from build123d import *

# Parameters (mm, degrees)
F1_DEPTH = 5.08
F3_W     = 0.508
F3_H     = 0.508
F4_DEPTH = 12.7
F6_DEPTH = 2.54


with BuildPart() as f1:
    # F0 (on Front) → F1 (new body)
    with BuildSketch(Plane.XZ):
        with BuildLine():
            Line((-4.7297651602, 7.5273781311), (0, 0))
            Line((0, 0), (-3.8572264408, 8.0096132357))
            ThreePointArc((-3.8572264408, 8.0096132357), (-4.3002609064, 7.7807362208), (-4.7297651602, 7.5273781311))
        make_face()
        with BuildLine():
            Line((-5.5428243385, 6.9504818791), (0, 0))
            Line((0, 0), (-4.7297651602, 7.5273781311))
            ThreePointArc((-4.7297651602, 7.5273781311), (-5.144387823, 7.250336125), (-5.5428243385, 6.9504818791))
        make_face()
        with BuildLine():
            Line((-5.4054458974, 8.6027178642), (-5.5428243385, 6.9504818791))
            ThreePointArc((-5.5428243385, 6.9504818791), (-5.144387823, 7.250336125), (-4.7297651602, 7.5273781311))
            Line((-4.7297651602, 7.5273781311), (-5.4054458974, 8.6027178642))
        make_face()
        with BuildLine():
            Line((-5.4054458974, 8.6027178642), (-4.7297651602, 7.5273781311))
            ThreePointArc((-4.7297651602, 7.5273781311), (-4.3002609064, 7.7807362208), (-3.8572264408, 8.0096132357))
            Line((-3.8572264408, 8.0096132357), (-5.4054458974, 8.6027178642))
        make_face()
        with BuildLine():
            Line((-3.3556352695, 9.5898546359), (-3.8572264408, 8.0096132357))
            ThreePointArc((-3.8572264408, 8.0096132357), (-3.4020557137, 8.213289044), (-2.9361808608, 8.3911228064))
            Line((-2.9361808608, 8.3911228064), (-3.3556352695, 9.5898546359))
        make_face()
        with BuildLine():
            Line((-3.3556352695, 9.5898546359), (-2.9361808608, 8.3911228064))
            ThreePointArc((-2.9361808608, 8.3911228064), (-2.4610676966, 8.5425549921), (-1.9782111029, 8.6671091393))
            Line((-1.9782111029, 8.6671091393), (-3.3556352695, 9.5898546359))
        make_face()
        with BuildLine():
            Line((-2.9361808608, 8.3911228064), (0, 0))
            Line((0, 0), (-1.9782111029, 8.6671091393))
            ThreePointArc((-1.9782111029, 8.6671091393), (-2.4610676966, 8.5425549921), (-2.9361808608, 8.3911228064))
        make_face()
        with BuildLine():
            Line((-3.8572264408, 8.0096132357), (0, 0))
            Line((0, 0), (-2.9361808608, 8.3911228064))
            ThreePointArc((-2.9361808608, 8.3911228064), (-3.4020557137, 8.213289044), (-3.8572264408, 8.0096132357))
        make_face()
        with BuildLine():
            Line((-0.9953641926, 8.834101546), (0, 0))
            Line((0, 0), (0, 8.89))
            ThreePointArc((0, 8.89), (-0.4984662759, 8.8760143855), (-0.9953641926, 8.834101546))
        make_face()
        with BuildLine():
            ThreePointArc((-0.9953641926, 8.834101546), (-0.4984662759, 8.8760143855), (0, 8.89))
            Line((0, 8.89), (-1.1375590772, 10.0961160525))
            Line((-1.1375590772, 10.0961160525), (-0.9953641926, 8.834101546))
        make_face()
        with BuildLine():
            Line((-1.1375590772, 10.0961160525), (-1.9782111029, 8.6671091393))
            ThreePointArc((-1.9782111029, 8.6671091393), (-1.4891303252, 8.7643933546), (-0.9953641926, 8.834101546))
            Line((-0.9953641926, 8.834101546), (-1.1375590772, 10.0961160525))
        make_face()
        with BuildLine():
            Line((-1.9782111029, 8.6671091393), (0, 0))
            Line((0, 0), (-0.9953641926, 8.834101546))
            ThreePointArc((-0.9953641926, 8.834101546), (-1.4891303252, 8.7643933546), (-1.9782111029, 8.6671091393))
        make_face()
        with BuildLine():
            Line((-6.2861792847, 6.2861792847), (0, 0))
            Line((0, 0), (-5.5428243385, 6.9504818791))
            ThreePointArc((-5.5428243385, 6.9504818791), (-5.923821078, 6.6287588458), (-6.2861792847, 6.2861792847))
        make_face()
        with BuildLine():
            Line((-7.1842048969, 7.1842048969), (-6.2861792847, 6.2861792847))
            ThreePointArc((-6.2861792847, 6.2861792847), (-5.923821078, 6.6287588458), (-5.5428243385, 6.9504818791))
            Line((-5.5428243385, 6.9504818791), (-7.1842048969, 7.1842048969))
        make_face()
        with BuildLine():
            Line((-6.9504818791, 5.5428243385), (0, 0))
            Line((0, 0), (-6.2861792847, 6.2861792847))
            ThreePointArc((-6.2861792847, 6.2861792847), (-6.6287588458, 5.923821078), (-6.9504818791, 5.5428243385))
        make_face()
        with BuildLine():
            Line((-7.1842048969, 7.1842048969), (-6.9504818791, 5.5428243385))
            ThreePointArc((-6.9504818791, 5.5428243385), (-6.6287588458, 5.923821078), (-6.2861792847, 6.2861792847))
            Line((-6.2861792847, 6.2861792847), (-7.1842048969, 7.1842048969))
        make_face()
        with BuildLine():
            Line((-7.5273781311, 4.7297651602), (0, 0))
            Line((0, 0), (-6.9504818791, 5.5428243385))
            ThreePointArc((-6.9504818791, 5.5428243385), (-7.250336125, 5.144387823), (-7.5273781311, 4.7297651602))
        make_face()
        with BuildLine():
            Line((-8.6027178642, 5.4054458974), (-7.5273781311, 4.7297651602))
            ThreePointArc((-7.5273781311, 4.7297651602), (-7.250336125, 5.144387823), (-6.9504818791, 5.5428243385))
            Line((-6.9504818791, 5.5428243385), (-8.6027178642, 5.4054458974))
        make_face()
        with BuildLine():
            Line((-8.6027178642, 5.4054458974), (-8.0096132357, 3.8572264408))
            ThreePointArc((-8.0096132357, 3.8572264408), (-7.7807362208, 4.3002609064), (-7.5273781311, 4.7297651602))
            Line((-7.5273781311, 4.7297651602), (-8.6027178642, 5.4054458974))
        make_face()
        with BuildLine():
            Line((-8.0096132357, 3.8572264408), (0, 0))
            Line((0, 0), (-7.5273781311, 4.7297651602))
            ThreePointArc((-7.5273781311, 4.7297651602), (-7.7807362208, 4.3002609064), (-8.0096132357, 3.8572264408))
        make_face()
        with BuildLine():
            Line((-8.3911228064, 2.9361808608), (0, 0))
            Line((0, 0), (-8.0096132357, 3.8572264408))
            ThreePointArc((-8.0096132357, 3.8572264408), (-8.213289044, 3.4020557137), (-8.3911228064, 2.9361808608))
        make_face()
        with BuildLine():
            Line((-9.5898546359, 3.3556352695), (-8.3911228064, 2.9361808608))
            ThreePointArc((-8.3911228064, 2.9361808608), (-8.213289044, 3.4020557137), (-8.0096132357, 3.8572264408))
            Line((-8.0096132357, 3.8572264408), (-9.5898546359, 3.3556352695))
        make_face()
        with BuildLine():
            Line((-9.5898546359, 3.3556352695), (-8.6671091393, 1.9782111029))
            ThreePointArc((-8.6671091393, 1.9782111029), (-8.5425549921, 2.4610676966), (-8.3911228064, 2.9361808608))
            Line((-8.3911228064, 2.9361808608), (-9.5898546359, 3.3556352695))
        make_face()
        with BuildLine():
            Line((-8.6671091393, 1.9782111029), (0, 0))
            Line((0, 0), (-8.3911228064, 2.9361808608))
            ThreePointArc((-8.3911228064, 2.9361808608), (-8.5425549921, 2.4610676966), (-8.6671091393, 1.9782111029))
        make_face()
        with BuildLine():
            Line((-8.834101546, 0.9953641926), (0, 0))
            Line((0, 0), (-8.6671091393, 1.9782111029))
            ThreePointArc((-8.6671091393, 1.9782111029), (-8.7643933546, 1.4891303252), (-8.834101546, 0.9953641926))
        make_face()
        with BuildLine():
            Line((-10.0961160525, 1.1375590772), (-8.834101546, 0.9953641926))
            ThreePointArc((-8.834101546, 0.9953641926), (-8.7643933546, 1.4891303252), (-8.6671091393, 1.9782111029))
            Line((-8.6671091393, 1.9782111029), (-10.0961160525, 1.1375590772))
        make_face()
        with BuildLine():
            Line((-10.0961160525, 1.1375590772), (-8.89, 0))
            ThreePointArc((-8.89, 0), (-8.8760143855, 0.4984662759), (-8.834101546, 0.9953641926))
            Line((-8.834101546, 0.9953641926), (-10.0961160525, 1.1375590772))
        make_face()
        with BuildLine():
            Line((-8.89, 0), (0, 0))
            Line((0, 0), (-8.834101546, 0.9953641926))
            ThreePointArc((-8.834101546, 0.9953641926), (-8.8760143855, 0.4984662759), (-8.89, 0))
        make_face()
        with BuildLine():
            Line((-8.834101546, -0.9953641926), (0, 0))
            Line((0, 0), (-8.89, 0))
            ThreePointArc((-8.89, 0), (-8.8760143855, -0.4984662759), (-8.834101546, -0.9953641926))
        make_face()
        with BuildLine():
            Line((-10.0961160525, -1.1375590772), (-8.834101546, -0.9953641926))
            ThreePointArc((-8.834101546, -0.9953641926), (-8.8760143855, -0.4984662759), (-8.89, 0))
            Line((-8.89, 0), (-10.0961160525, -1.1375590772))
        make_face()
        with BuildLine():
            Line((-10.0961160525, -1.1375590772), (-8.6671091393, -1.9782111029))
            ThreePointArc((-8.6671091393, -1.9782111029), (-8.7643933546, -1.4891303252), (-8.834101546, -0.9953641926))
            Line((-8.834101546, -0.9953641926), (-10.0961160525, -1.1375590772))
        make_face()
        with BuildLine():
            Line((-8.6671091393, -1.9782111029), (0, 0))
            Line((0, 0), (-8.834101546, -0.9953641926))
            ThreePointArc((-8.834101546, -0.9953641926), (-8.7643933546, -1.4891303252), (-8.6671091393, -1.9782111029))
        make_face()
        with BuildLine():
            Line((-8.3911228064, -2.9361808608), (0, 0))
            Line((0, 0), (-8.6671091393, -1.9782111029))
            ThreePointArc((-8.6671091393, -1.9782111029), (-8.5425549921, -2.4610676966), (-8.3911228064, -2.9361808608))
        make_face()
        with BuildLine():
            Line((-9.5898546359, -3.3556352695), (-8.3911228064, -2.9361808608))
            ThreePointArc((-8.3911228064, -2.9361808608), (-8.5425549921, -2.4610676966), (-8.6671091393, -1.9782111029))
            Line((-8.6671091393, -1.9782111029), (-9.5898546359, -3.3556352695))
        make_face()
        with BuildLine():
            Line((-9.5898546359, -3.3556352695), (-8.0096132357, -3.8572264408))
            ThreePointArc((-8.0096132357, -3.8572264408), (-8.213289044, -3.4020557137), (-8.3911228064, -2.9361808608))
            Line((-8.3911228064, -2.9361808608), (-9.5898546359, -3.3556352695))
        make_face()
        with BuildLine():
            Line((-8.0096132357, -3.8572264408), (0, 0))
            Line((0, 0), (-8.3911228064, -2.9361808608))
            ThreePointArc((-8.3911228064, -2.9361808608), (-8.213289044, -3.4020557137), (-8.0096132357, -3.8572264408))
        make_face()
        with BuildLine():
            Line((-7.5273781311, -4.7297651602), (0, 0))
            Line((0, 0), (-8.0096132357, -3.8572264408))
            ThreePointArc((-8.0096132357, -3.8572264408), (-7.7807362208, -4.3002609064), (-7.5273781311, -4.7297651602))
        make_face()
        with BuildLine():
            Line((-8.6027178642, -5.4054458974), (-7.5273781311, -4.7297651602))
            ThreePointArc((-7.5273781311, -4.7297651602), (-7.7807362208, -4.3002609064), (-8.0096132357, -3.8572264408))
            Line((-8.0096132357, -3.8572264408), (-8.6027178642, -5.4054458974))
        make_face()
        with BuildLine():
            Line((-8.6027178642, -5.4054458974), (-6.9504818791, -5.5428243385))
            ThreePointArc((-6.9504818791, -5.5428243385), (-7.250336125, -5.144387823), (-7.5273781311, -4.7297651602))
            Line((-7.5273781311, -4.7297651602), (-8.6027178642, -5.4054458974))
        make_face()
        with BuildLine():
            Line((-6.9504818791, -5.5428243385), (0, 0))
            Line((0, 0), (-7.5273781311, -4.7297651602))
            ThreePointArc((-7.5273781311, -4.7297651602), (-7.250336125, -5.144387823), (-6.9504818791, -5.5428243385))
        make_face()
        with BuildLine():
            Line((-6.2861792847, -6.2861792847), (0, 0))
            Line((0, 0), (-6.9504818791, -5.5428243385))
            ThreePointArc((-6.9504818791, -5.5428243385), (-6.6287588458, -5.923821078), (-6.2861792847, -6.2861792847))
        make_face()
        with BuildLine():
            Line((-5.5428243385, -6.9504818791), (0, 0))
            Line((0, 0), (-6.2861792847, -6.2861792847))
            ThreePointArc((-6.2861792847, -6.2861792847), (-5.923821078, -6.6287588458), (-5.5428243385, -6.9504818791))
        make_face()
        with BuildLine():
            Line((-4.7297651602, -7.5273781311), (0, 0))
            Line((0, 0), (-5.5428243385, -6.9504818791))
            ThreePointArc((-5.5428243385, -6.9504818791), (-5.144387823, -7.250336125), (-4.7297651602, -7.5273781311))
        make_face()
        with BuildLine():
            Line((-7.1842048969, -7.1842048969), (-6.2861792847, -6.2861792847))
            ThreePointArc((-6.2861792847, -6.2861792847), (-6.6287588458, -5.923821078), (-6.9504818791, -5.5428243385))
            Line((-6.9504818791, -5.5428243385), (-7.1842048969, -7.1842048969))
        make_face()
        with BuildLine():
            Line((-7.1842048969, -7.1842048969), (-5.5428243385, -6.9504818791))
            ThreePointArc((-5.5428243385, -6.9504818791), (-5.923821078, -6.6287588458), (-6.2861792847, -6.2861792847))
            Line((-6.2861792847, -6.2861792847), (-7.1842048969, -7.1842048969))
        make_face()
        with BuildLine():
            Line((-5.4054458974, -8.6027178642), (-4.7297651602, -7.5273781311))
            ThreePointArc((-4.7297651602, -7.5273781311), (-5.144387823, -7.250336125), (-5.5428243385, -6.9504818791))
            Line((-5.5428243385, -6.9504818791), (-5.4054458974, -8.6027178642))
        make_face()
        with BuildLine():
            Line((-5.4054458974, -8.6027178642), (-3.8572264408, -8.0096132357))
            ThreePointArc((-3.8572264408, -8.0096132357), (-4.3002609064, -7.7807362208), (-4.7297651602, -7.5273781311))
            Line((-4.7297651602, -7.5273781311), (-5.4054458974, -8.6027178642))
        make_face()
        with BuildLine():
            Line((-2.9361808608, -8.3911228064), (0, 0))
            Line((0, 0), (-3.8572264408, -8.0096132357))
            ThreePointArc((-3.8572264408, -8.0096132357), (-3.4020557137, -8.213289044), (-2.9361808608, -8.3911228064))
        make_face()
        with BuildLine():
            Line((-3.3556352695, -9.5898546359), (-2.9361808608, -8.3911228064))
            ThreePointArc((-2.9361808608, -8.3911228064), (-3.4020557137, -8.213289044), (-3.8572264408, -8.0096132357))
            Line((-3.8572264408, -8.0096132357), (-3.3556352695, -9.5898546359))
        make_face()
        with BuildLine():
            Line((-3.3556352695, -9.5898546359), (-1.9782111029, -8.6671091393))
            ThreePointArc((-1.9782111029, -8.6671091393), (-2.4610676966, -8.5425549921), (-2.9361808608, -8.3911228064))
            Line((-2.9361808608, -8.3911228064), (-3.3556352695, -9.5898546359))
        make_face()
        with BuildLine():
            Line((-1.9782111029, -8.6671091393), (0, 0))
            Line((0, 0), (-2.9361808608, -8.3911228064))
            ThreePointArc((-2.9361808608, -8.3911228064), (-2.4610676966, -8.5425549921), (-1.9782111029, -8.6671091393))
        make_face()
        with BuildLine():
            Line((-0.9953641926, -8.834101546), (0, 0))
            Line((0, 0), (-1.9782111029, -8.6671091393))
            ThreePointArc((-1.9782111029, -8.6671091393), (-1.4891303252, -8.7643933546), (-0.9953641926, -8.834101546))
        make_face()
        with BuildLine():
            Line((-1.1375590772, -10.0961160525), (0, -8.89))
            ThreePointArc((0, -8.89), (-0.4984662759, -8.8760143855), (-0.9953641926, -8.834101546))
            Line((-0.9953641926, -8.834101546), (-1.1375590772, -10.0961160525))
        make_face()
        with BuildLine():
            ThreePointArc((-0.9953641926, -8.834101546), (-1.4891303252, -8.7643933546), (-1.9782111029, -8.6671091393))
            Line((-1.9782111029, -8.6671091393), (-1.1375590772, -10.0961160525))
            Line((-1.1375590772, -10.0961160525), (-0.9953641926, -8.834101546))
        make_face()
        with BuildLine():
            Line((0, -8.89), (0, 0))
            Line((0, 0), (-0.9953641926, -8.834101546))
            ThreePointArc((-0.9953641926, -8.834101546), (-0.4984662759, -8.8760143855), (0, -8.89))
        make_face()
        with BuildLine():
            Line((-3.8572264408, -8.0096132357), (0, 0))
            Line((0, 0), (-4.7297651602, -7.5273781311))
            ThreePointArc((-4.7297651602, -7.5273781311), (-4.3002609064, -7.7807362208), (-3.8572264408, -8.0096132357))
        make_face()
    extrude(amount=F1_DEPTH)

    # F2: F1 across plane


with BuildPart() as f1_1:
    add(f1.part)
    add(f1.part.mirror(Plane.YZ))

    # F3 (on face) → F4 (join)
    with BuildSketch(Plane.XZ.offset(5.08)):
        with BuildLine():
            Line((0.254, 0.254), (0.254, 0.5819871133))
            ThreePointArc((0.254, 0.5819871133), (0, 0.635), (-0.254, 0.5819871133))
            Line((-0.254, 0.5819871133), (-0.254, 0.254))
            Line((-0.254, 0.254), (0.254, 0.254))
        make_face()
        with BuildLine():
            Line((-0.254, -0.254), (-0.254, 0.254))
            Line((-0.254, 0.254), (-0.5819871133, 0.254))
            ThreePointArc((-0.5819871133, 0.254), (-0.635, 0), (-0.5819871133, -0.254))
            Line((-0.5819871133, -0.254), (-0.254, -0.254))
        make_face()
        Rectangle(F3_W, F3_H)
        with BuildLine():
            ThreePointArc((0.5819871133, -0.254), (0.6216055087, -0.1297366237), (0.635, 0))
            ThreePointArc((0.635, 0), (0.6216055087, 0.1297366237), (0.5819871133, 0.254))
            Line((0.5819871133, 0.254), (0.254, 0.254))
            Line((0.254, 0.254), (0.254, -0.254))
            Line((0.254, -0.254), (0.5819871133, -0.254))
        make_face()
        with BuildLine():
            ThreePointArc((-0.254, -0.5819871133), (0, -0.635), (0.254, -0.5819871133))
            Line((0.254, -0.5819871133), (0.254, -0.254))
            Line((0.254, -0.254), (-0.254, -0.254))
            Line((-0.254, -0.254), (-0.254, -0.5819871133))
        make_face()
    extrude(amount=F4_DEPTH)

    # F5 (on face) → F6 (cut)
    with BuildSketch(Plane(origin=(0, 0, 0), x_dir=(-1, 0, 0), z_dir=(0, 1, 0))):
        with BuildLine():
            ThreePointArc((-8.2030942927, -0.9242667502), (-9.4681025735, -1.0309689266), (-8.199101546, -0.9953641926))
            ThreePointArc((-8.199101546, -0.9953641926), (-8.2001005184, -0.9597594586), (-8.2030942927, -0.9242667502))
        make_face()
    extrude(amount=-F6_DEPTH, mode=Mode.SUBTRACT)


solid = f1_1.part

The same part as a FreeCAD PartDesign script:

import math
import FreeCAD as App
import Part
import Sketcher

V = App.Vector
Q = App.Units.Quantity


def add_polygon(sketch, points):
    """Adds a closed chain of lines whose ends are joined by coincident constraints."""
    first, n = sketch.GeometryCount, len(points)
    for a, b in zip(points, points[1:] + points[:1]):
        sketch.addGeometry(Part.LineSegment(App.Vector(*a, 0), App.Vector(*b, 0)), False)
    for i in range(n):
        sketch.addConstraint(Sketcher.Constraint("Coincident", first + i, 2, first + (i + 1) % n, 1))

doc = App.newDocument("Part")
body = doc.addObject("PartDesign::Body", "Body")

# Sketch on XZ plane
sketch1 = body.newObject("Sketcher::SketchObject", "Sketch")
sketch1.AttachmentSupport = (doc.getObject("XZ_Plane"), [""])
sketch1.MapMode = "FlatFace"
add_polygon(sketch1, [(-3.9, 8), (-5.4, 8.6), (-5.5, 7), (-7.2, 7.2), (-7, 5.5), (-8.6, 5.4), (-8, 3.9), (-9.6, 3.4), (-8.7, 2), (-10.1, 1.1), (-8.9, 0), (-10.1, -1.1), (-8.7, -2), (-9.6, -3.4), (-8, -3.9), (-8.6, -5.4), (-7, -5.5), (-7.2, -7.2), (-5.5, -7), (-5.4, -8.6), (-3.9, -8), (-3.4, -9.6), (-2, -8.7), (-1.1, -10.1), (0, -8.9), (0, 8.9), (-1.1, 10.1), (-2, 8.7), (-3.4, 9.6)])  # lines 0-28
sketch1.addConstraint(Sketcher.Constraint("Vertical", 24))
sketch1.addConstraint(Sketcher.Constraint("Symmetric", 23, 2, 24, 2, -1, 1))
sketch1.addConstraint(Sketcher.Constraint("Symmetric", 8, 2, 10, 2, -1))
sketch1.addConstraint(Sketcher.Constraint("Symmetric", 7, 2, 11, 2, -1))
sketch1.addConstraint(Sketcher.Constraint("Symmetric", 6, 2, 12, 2, -1))
sketch1.addConstraint(Sketcher.Constraint("Symmetric", 5, 2, 13, 2, -1))
sketch1.addConstraint(Sketcher.Constraint("Symmetric", 4, 2, 14, 2, -1))
sketch1.addConstraint(Sketcher.Constraint("Symmetric", 3, 2, 15, 2, -1))
sketch1.addConstraint(Sketcher.Constraint("Symmetric", 2, 2, 16, 2, -1))
sketch1.addConstraint(Sketcher.Constraint("Symmetric", 1, 2, 17, 2, -1))
sketch1.addConstraint(Sketcher.Constraint("Symmetric", 0, 2, 18, 2, -1))
sketch1.addConstraint(Sketcher.Constraint("Symmetric", 22, 2, 25, 2, -1))
sketch1.addConstraint(Sketcher.Constraint("Symmetric", 21, 2, 26, 2, -1))
sketch1.addConstraint(Sketcher.Constraint("Symmetric", 20, 2, 27, 2, -1))
sketch1.addConstraint(Sketcher.Constraint("Symmetric", 19, 2, 28, 2, -1))
sketch1.addConstraint(Sketcher.Constraint("PointOnObject", 9, 2, -1))
sketch1.addConstraint(Sketcher.Constraint("Perpendicular", 0, 14))
sketch1.addConstraint(Sketcher.Constraint("Perpendicular", 1, 15))
sketch1.addConstraint(Sketcher.Constraint("Perpendicular", 2, 16))
sketch1.addConstraint(Sketcher.Constraint("Perpendicular", 6, 20))
sketch1.addConstraint(Sketcher.Constraint("Perpendicular", 7, 21))
sketch1.addConstraint(Sketcher.Constraint("Perpendicular", 8, 22))
sketch1.addConstraint(Sketcher.Constraint("Perpendicular", 9, 23))
sketch1.addConstraint(Sketcher.Constraint("Equal", 0, 1))
sketch1.addConstraint(Sketcher.Constraint("Equal", 1, 2))
sketch1.addConstraint(Sketcher.Constraint("Equal", 2, 3))
sketch1.addConstraint(Sketcher.Constraint("Equal", 3, 4))
sketch1.addConstraint(Sketcher.Constraint("Equal", 4, 5))
sketch1.addConstraint(Sketcher.Constraint("Equal", 5, 6))
sketch1.addConstraint(Sketcher.Constraint("Equal", 6, 7))
sketch1.addConstraint(Sketcher.Constraint("Equal", 7, 8))
sketch1.addConstraint(Sketcher.Constraint("Equal", 8, 9))
sketch1.addConstraint(Sketcher.Constraint("Equal", 19, 20))
sketch1.addConstraint(Sketcher.Constraint("Equal", 20, 21))
sketch1.addConstraint(Sketcher.Constraint("Equal", 21, 22))
sketch1.addConstraint(Sketcher.Constraint("Equal", 22, 23))
sketch1.addConstraint(Sketcher.Constraint("DistanceY", 24, 1, 24, 2, Q("0.7 in")))
sketch1.addConstraint(Sketcher.Constraint("DistanceX", 8, 2, 4, 2, Q("1.493398 mm")))
sketch1.addConstraint(Sketcher.Constraint("DistanceY", -1, 1, 1, 2, Q("6.950482 mm")))
sketch1.addConstraint(Sketcher.Constraint("DistanceX", 7, 2, -1, 1, Q("8.667109 mm")))
sketch1.addConstraint(Sketcher.Constraint("DistanceY", -1, 1, 7, 2, Q("1.978211 mm")))
sketch1.addConstraint(Sketcher.Constraint("DistanceY", -1, 1, 8, 2, Q("1.137559 mm")))
sketch1.addConstraint(Sketcher.Constraint("DistanceX", 2, 2, 1, 2, Q("1.641381 mm")))
sketch1.addConstraint(Sketcher.Constraint("DistanceY", 5, 2, 4, 2, Q("1.548219 mm")))
pad1 = body.newObject("PartDesign::Pad", "Pad")
pad1.Profile = sketch1
pad1.Length = Q("0.2 in")
body2 = doc.addObject("PartDesign::Body", "Body001")
doc.recompute()

body2.BaseFeature = body
doc.recompute()

mirroring = doc.addObject("Part::Mirroring", "Mirroring")
mirroring.Source = body
mirroring.Base = V(0, 0, 0)
mirroring.Normal = V(1, 0, 0)
body3 = doc.addObject("PartDesign::Body", "Body002")
body3.BaseFeature = mirroring
boolean = body2.newObject("PartDesign::Boolean", "Boolean")
boolean.Type = "Fuse"
boolean.addObjects([body3])
doc.recompute()

# Sketch on XZ plane
sketch2 = body2.newObject("Sketcher::SketchObject", "Sketch001")
sketch2.AttachmentSupport = (doc.getObject("XZ_Plane001"), [""])
sketch2.MapMode = "FlatFace"
sketch2.AttachmentOffset = App.Placement(V(0, 0, 0.2 * 25.4), App.Rotation())
sketch2.addGeometry(Part.ArcOfCircle(Part.Circle(V(0, 0, 0), V(0, 0, 1), 0.64), math.radians(66), math.radians(114)), False)
sketch2.addGeometry(Part.LineSegment(V(-0.25, 0.58, 0), V(-0.25, 0.25, 0)), False)
sketch2.addGeometry(Part.LineSegment(V(-0.25, 0.25, 0), V(-0.58, 0.25, 0)), False)
sketch2.addGeometry(Part.ArcOfCircle(Part.Circle(V(0, 0, 0), V(0, 0, 1), 0.64), math.radians(156), math.radians(204)), False)
sketch2.addGeometry(Part.LineSegment(V(-0.58, -0.25, 0), V(-0.25, -0.25, 0)), False)
sketch2.addGeometry(Part.LineSegment(V(-0.25, -0.25, 0), V(-0.25, -0.58, 0)), False)
sketch2.addGeometry(Part.ArcOfCircle(Part.Circle(V(0, 0, 0), V(0, 0, 1), 0.64), math.radians(-114), math.radians(-66)), False)
sketch2.addGeometry(Part.LineSegment(V(0.25, -0.58, 0), V(0.25, -0.25, 0)), False)
sketch2.addGeometry(Part.LineSegment(V(0.25, -0.25, 0), V(0.58, -0.25, 0)), False)
sketch2.addGeometry(Part.ArcOfCircle(Part.Circle(V(0, 0, 0), V(0, 0, 1), 0.64), math.radians(-24), math.radians(0)), False)
sketch2.addGeometry(Part.ArcOfCircle(Part.Circle(V(0, 0, 0), V(0, 0, 1), 0.64), math.radians(0), math.radians(24)), False)
sketch2.addGeometry(Part.LineSegment(V(0.58, 0.25, 0), V(0.25, 0.25, 0)), False)
sketch2.addGeometry(Part.LineSegment(V(0.25, 0.25, 0), V(0.25, 0.58, 0)), False)
sketch2.addConstraint(Sketcher.Constraint("Coincident", 0, 2, 1, 1))
sketch2.addConstraint(Sketcher.Constraint("Coincident", 1, 2, 2, 1))
sketch2.addConstraint(Sketcher.Constraint("Coincident", 2, 2, 3, 1))
sketch2.addConstraint(Sketcher.Constraint("Coincident", 3, 2, 4, 1))
sketch2.addConstraint(Sketcher.Constraint("Coincident", 4, 2, 5, 1))
sketch2.addConstraint(Sketcher.Constraint("Coincident", 5, 2, 6, 1))
sketch2.addConstraint(Sketcher.Constraint("Coincident", 6, 2, 7, 1))
sketch2.addConstraint(Sketcher.Constraint("Coincident", 7, 2, 8, 1))
sketch2.addConstraint(Sketcher.Constraint("Coincident", 8, 2, 9, 1))
sketch2.addConstraint(Sketcher.Constraint("Tangent", 9, 2, 10, 1))
sketch2.addConstraint(Sketcher.Constraint("Coincident", 10, 2, 11, 1))
sketch2.addConstraint(Sketcher.Constraint("Coincident", 11, 2, 12, 1))
sketch2.addConstraint(Sketcher.Constraint("Coincident", 12, 2, 0, 1))
sketch2.addConstraint(Sketcher.Constraint("Vertical", 1))
sketch2.addConstraint(Sketcher.Constraint("Horizontal", 2))
sketch2.addConstraint(Sketcher.Constraint("Horizontal", 4))
sketch2.addConstraint(Sketcher.Constraint("Vertical", 5))
sketch2.addConstraint(Sketcher.Constraint("Vertical", 7))
sketch2.addConstraint(Sketcher.Constraint("Horizontal", 8))
sketch2.addConstraint(Sketcher.Constraint("Horizontal", 11))
sketch2.addConstraint(Sketcher.Constraint("Vertical", 12))
sketch2.addConstraint(Sketcher.Constraint("Coincident", 0, 3, -1, 1))
sketch2.addConstraint(Sketcher.Constraint("Coincident", 3, 3, -1, 1))
sketch2.addConstraint(Sketcher.Constraint("Coincident", 6, 3, -1, 1))
sketch2.addConstraint(Sketcher.Constraint("Coincident", 9, 3, -1, 1))
sketch2.addConstraint(Sketcher.Constraint("Equal", 0, 3))
sketch2.addConstraint(Sketcher.Constraint("Equal", 3, 6))
sketch2.addConstraint(Sketcher.Constraint("Equal", 6, 9))
sketch2.addConstraint(Sketcher.Constraint("Equal", 9, 10))
sketch2.addConstraint(Sketcher.Constraint("Symmetric", 1, 2, 7, 2, -1, 1))
sketch2.addConstraint(Sketcher.Constraint("Symmetric", 4, 2, 11, 2, -1, 1))
sketch2.addConstraint(Sketcher.Constraint("Symmetric", 4, 2, 7, 2, -2))
sketch2.addConstraint(Sketcher.Constraint("PointOnObject", 9, 2, -1))
sketch2.addConstraint(Sketcher.Constraint("Equal", 11, 1))
sketch2.addConstraint(Sketcher.Constraint("Radius", 0, Q("0.025 in")))
sketch2.addConstraint(Sketcher.Constraint("DistanceX", 0, 2, -1, 1, Q("0.01 in")))
pad2 = body2.newObject("PartDesign::Pad", "Pad001")
pad2.Profile = sketch2
pad2.Length = Q("0.5 in")

# Sketch on XZ plane
sketch3 = body2.newObject("Sketcher::SketchObject", "Sketch002")
sketch3.AttachmentSupport = (doc.getObject("XZ_Plane001"), [""])
sketch3.MapMode = "FlatFace"
sketch3.addGeometry(Part.ArcOfCircle(Part.Circle(V(8.83, -1, 0), V(0, 0, 1), 0.64), math.radians(-180), math.radians(174)), False)
sketch3.addGeometry(Part.ArcOfCircle(Part.Circle(V(8.83, -1, 0), V(0, 0, 1), 0.63), math.radians(173.57), math.radians(180)), False)
sketch3.addConstraint(Sketcher.Constraint("Tangent", 0, 1, 1, 2))
sketch3.addConstraint(Sketcher.Constraint("Coincident", 1, 1, 0, 2))
sketch3.addConstraint(Sketcher.Constraint("Horizontal", 1, 3, 0, 1))
sketch3.addConstraint(Sketcher.Constraint("Radius", 0, Q("0.025 in")))
sketch3.addConstraint(Sketcher.Constraint("DistanceX", -1, 1, 0, 3, Q("8.834102 mm")))
sketch3.addConstraint(Sketcher.Constraint("DistanceY", 0, 3, -1, 1, Q("0.995364 mm")))
sketch3.addConstraint(Sketcher.Constraint("DistanceX", -1, 1, 1, 1, Q("8.203094 mm")))
pocket1 = body2.newObject("PartDesign::Pocket", "Pocket")
pocket1.Profile = sketch3
pocket1.Length = Q("0.1 in")
pocket1.Reversed = True
mirroring.Visibility = False

doc.recompute()
